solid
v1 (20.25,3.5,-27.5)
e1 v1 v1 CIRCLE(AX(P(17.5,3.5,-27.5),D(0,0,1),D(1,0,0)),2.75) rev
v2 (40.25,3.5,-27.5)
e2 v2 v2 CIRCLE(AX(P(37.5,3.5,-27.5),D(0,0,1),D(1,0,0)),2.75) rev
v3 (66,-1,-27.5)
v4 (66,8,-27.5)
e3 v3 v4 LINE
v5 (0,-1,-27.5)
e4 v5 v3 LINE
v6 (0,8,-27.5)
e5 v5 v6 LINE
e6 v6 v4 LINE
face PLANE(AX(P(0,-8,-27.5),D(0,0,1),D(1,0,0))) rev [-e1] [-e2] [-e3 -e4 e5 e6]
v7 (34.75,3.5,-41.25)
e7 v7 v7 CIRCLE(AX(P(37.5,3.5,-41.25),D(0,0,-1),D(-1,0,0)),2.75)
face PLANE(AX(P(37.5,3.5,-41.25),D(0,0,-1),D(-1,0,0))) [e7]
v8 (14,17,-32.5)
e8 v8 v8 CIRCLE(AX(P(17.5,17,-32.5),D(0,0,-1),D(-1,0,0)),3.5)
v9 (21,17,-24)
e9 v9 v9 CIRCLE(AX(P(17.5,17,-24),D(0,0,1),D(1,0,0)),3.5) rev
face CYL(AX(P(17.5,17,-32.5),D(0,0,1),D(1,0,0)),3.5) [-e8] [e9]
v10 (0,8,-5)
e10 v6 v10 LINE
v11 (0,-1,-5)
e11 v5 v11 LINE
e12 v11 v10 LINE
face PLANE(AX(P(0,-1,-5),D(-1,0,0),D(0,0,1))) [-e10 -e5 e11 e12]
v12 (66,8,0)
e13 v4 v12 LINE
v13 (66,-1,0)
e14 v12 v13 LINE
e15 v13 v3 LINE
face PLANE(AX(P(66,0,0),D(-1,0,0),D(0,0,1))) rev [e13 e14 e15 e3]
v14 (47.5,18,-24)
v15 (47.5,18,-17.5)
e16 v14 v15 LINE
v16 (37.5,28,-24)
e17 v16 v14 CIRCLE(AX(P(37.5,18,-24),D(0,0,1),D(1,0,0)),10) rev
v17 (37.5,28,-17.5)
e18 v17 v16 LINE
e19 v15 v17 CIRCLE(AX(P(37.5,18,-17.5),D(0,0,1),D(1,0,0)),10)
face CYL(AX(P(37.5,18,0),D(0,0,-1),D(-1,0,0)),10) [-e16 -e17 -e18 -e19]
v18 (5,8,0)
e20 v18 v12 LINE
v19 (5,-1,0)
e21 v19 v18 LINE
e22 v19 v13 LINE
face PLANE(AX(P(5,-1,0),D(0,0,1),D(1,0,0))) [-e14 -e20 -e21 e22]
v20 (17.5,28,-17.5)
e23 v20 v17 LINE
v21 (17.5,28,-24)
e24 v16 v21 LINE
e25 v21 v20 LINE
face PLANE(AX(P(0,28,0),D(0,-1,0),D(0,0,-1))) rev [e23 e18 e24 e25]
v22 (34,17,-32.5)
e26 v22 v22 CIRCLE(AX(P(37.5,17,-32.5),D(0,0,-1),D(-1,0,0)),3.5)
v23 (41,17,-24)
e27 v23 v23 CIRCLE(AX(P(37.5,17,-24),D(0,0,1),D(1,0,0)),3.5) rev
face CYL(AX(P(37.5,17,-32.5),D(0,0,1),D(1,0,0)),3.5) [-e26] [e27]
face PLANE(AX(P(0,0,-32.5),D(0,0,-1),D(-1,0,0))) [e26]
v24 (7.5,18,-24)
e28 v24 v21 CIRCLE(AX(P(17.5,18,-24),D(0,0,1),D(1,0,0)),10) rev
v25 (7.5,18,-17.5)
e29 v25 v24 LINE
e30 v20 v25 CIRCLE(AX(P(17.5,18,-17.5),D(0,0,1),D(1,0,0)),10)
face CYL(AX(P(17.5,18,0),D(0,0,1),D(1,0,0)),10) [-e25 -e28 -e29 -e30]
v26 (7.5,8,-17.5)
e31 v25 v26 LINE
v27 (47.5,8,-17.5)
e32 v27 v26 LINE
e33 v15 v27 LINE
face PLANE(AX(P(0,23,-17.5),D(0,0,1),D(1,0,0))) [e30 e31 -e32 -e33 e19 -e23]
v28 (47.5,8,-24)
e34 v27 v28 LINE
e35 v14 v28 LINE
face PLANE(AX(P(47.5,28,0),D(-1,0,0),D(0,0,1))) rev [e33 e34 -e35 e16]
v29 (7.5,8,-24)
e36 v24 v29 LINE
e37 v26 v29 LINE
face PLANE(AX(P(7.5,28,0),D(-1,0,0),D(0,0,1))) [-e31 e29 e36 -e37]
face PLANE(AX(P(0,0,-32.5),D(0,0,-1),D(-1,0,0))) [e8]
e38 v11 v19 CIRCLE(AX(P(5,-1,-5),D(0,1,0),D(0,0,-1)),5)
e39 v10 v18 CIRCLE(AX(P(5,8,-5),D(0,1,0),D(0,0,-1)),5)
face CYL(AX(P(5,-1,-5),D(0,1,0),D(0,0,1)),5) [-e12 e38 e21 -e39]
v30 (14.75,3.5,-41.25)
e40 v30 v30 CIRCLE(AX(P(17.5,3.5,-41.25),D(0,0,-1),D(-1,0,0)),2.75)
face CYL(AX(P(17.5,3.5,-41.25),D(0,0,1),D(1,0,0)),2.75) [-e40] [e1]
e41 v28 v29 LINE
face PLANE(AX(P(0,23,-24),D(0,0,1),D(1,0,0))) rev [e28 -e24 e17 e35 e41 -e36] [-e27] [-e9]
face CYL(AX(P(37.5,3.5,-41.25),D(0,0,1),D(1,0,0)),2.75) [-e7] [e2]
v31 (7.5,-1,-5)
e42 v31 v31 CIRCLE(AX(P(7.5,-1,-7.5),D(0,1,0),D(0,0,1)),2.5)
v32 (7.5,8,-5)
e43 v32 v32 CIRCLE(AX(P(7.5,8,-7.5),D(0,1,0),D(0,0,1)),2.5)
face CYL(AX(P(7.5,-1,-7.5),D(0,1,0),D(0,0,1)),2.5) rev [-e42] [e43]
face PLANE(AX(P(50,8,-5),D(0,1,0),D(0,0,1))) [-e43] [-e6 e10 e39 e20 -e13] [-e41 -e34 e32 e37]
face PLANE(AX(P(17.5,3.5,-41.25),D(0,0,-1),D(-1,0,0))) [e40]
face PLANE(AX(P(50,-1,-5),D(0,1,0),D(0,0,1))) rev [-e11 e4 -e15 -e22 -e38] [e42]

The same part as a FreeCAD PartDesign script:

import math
import FreeCAD as App
import Part
import Sketcher


def edges_at(feature, points):
    """Names of the edges that pass closest to the given points."""
    edges = feature.Shape.Edges
    near = lambda p: min(range(len(edges)), key=lambda i: edges[i].distToShape(Part.Vertex(*p))[0])
    return sorted({f"Edge{near(p) + 1}" for p in points})

doc = App.newDocument("Part")
body = doc.addObject("PartDesign::Body", "Body")

# Sketch on XZ plane
sketch1 = body.newObject("Sketcher::SketchObject", "Sketch")
sketch1.AttachmentSupport = (doc.getObject("XZ_Plane"), [""])
sketch1.MapMode = "FlatFace"
sketch1.addGeometry(Part.LineSegment(App.Vector(5, 0, 0), App.Vector(50, 0, 0)), False)
sketch1.addGeometry(Part.ArcOfCircle(Part.Circle(App.Vector(50, -5, 0), App.Vector(0, 0, 1), 5), math.radians(0), math.radians(90)), False)
sketch1.addGeometry(Part.LineSegment(App.Vector(55, -5, 0), App.Vector(55, -50, 0)), False)
sketch1.addGeometry(Part.ArcOfCircle(Part.Circle(App.Vector(50, -50, 0), App.Vector(0, 0, 1), 5), math.radians(-90), math.radians(0)), False)
sketch1.addGeometry(Part.LineSegment(App.Vector(50, -55, 0), App.Vector(5, -55, 0)), False)
sketch1.addGeometry(Part.ArcOfCircle(Part.Circle(App.Vector(5, -50, 0), App.Vector(0, 0, 1), 5), math.radians(180), math.radians(270)), False)
sketch1.addGeometry(Part.LineSegment(App.Vector(0, -50, 0), App.Vector(0, -5, 0)), False)
sketch1.addGeometry(Part.ArcOfCircle(Part.Circle(App.Vector(5, -5, 0), App.Vector(0, 0, 1), 5), math.radians(90), math.radians(180)), False)
sketch1.addGeometry(Part.Circle(App.Vector(7.5, -7.5, 0), App.Vector(0, 0, 1), 2.5), False)
sketch1.addGeometry(Part.Circle(App.Vector(47.5, -7.5, 0), App.Vector(0, 0, 1), 2.5), False)
sketch1.addGeometry(Part.Circle(App.Vector(7.5, -47.5, 0), App.Vector(0, 0, 1), 2.5), False)
sketch1.addGeometry(Part.Circle(App.Vector(47.5, -47.5, 0), App.Vector(0, 0, 1), 2.5), False)
sketch1.addConstraint(Sketcher.Constraint("Tangent", 0, 2, 1, 2))
sketch1.addConstraint(Sketcher.Constraint("Tangent", 1, 1, 2, 1))
sketch1.addConstraint(Sketcher.Constraint("Tangent", 2, 2, 3, 2))
sketch1.addConstraint(Sketcher.Constraint("Tangent", 3, 1, 4, 1))
sketch1.addConstraint(Sketcher.Constraint("Tangent", 4, 2, 5, 2))
sketch1.addConstraint(Sketcher.Constraint("Tangent", 5, 1, 6, 1))
sketch1.addConstraint(Sketcher.Constraint("Tangent", 6, 2, 7, 2))
sketch1.addConstraint(Sketcher.Constraint("Tangent", 7, 1, 0, 1))
sketch1.addConstraint(Sketcher.Constraint("Horizontal", 0))
sketch1.addConstraint(Sketcher.Constraint("Vertical", 2))
sketch1.addConstraint(Sketcher.Constraint("Horizontal", 4))
sketch1.addConstraint(Sketcher.Constraint("Vertical", 6))
sketch1.addConstraint(Sketcher.Constraint("Equal", 1, 3))
sketch1.addConstraint(Sketcher.Constraint("Equal", 3, 5))
sketch1.addConstraint(Sketcher.Constraint("Equal", 5, 7))
sketch1.addConstraint(Sketcher.Constraint("Equal", 8, 9))
sketch1.addConstraint(Sketcher.Constraint("Equal", 9, 10))
sketch1.addConstraint(Sketcher.Constraint("Equal", 10, 11))
sketch1.addConstraint(Sketcher.Constraint("PointOnObject", 0, 2, -1))
sketch1.addConstraint(Sketcher.Constraint("PointOnObject", 5, 1, -2))
sketch1.addConstraint(Sketcher.Constraint("Horizontal", 8, 3, 9, 3))
sketch1.addConstraint(Sketcher.Constraint("Horizontal", 10, 3, 11, 3))
sketch1.addConstraint(Sketcher.Constraint("Vertical", 8, 3, 10, 3))
sketch1.addConstraint(Sketcher.Constraint("Vertical", 9, 3, 11, 3))
sketch1.addConstraint(Sketcher.Constraint("Equal", 4, 2))
sketch1.addConstraint(Sketcher.Constraint("Diameter", 8, 5.0))
sketch1.addConstraint(Sketcher.Constraint("Radius", 1, 5.0))
sketch1.addConstraint(Sketcher.Constraint("DistanceX", 0, 1, 0, 2, 45.0))
sketch1.addConstraint(Sketcher.Constraint("DistanceX", 8, 3, 9, 3, 40.0))
sketch1.addConstraint(Sketcher.Constraint("DistanceY", 10, 3, 8, 3, 40.0))
sketch1.addConstraint(Sketcher.Constraint("DistanceX", -1, 1, 8, 3, 7.5))
sketch1.addConstraint(Sketcher.Constraint("DistanceY", 8, 3, -1, 1, 7.5))
pad1 = body.newObject("PartDesign::Pad", "Pad")
pad1.Profile = sketch1
pad1.Type = "TwoLengths"
pad1.Length = 8
pad1.Length2 = 1
pad1.Reversed = True

# Sketch on XZ plane
sketch2 = body.newObject("Sketcher::SketchObject", "Sketch001")
sketch2.AttachmentSupport = (doc.getObject("XZ_Plane"), [""])
sketch2.MapMode = "FlatFace"
sketch2.AttachmentOffset = App.Placement(App.Vector(0, 0, 8), App.Rotation())
sketch2.addGeometry(Part.LineSegment(App.Vector(0, -50, 0), App.Vector(0, -27.5, 0)), False)
sketch2.addGeometry(Part.LineSegment(App.Vector(0, -27.5, 0), App.Vector(55, -27.5, 0)), False)
sketch2.addGeometry(Part.LineSegment(App.Vector(55, -27.5, 0), App.Vector(55, -50, 0)), False)
sketch2.addGeometry(Part.ArcOfCircle(Part.Circle(App.Vector(50, -50, 0), App.Vector(0, 0, 1), 5), math.radians(-90), math.radians(0)), False)
sketch2.addGeometry(Part.LineSegment(App.Vector(50, -55, 0), App.Vector(5, -55, 0)), False)
sketch2.addGeometry(Part.ArcOfCircle(Part.Circle(App.Vector(5, -50, 0), App.Vector(0, 0, 1), 5), math.radians(180), math.radians(270)), False)
sketch2.addGeometry(Part.Circle(App.Vector(7.5, -47.5, 0), App.Vector(0, 0, 1), 2.5), False)
sketch2.addGeometry(Part.Circle(App.Vector(47.5, -47.5, 0), App.Vector(0, 0, 1), 2.5), False)
sketch2.addConstraint(Sketcher.Constraint("Coincident", 0, 2, 1, 1))
sketch2.addConstraint(Sketcher.Constraint("Coincident", 1, 2, 2, 1))
sketch2.addConstraint(Sketcher.Constraint("Tangent", 2, 2, 3, 2))
sketch2.addConstraint(Sketcher.Constraint("Tangent", 3, 1, 4, 1))
sketch2.addConstraint(Sketcher.Constraint("Tangent", 4, 2, 5, 2))
sketch2.addConstraint(Sketcher.Constraint("Tangent", 5, 1, 0, 1))
sketch2.addConstraint(Sketcher.Constraint("Vertical", 0))
sketch2.addConstraint(Sketcher.Constraint("Horizontal", 1))
sketch2.addConstraint(Sketcher.Constraint("Vertical", 2))
sketch2.addConstraint(Sketcher.Constraint("Horizontal", 4))
sketch2.addConstraint(Sketcher.Constraint("Equal", 3, 5))
sketch2.addConstraint(Sketcher.Constraint("Equal", 6, 7))
sketch2.addConstraint(Sketcher.Constraint("PointOnObject", 0, 2, -2))
sketch2.addConstraint(Sketcher.Constraint("Horizontal", 6, 3, 7, 3))
sketch2.addConstraint(Sketcher.Constraint("Diameter", 6, 5.0))
sketch2.addConstraint(Sketcher.Constraint("Radius", 3, 5.0))
sketch2.addConstraint(Sketcher.Constraint("DistanceX", 1, 1, 1, 2, 55.0))
sketch2.addConstraint(Sketcher.Constraint("DistanceY", 0, 1, 0, 2, 22.5))
sketch2.addConstraint(Sketcher.Constraint("DistanceY", 3, 3, -1, 1, 50.0))
sketch2.addConstraint(Sketcher.Constraint("DistanceX", 6, 3, 7, 3, 40.0))
sketch2.addConstraint(Sketcher.Constraint("DistanceY", 6, 3, 0, 2, 20.0))
sketch2.addConstraint(Sketcher.Constraint("DistanceX", -1, 1, 6, 3, 7.5))
pocket1 = body.newObject("PartDesign::Pocket", "Pocket")
pocket1.Profile = sketch2
pocket1.Length = 16

# Sketch on XY plane
sketch3 = body.newObject("Sketcher::SketchObject", "Sketch002")
sketch3.AttachmentSupport = (doc.getObject("XY_Plane"), [""])
sketch3.MapMode = "FlatFace"
sketch3.AttachmentOffset = App.Placement(App.Vector(0, 0, -27.5), App.Rotation())
sketch3.addGeometry(Part.Circle(App.Vector(37.5, 3.5, 0), App.Vector(0, 0, 1), 2.75), False)
sketch3.addGeometry(Part.Circle(App.Vector(17.5, 3.5, 0), App.Vector(0, 0, 1), 2.75), False)
sketch3.addConstraint(Sketcher.Constraint("Equal", 0, 1))
sketch3.addConstraint(Sketcher.Constraint("Horizontal", 0, 3, 1, 3))
sketch3.addConstraint(Sketcher.Constraint("Diameter", 0, 5.5))
sketch3.addConstraint(Sketcher.Constraint("DistanceX", 1, 3, 0, 3, 20.0))
sketch3.addConstraint(Sketcher.Constraint("DistanceX", -1, 1, 0, 3, 37.5))
sketch3.addConstraint(Sketcher.Constraint("DistanceY", -1, 1, 0, 3, 3.5))
pad2 = body.newObject("PartDesign::Pad", "Pad001")
pad2.Profile = sketch3
pad2.Length = 13.75
pad2.Reversed = True

# Sketch on XZ plane
sketch4 = body.newObject("Sketcher::SketchObject", "Sketch003")
sketch4.AttachmentSupport = (doc.getObject("XZ_Plane"), [""])
sketch4.MapMode = "FlatFace"
sketch4.AttachmentOffset = App.Placement(App.Vector(0, 0, -8), App.Rotation())
sketch4.addGeometry(Part.LineSegment(App.Vector(23, -24, 0), App.Vector(23, -17.5, 0)), False)
sketch4.addGeometry(Part.LineSegment(App.Vector(23, -17.5, 0), App.Vector(32, -17.5, 0)), False)
sketch4.addGeometry(Part.LineSegment(App.Vector(32, -17.5, 0), App.Vector(32, -24, 0)), False)
sketch4.addGeometry(Part.LineSegment(App.Vector(32, -24, 0), App.Vector(23, -24, 0)), False)
sketch4.addConstraint(Sketcher.Constraint("Coincident", 0, 2, 1, 1))
sketch4.addConstraint(Sketcher.Constraint("Coincident", 1, 2, 2, 1))
sketch4.addConstraint(Sketcher.Constraint("Coincident", 2, 2, 3, 1))
sketch4.addConstraint(Sketcher.Constraint("Coincident", 3, 2, 0, 1))
sketch4.addConstraint(Sketcher.Constraint("Vertical", 0))
sketch4.addConstraint(Sketcher.Constraint("Horizontal", 1))
sketch4.addConstraint(Sketcher.Constraint("Vertical", 2))
sketch4.addConstraint(Sketcher.Constraint("Horizontal", 3))
sketch4.addConstraint(Sketcher.Constraint("DistanceX", 1, 1, 1, 2, 9.0))
sketch4.addConstraint(Sketcher.Constraint("DistanceY", 0, 1, 0, 2, 6.5))
sketch4.addConstraint(Sketcher.Constraint("DistanceX", -1, 1, 0, 2, 23.0))
sketch4.addConstraint(Sketcher.Constraint("DistanceY", 2, 2, -1, 1, 24.0))
pad3 = body.newObject("PartDesign::Pad", "Pad002")
pad3.Profile = sketch4
pad3.Length = 15
pad3.Reversed = True

# Sketch on XY plane
sketch5 = body.newObject("Sketcher::SketchObject", "Sketch004")
sketch5.AttachmentSupport = (doc.getObject("XY_Plane"), [""])
sketch5.MapMode = "FlatFace"
sketch5.AttachmentOffset = App.Placement(App.Vector(0, 0, -24), App.Rotation())
sketch5.addGeometry(Part.ArcOfCircle(Part.Circle(App.Vector(27.5, 16, 0), App.Vector(0, 0, 1), 3.5), math.radians(-180), math.radians(-122.171242)), False)
sketch5.addGeometry(Part.ArcOfCircle(Part.Circle(App.Vector(27.5, 16, 0), App.Vector(0, 0, 1), 3.5), math.radians(-90), math.radians(180)), False)
sketch5.addGeometry(Part.ArcOfCircle(Part.Circle(App.Vector(27.5, 16, 0), App.Vector(0, 0, 1), 3.5), math.radians(-116.898158), math.radians(-90)), False)
sketch5.addGeometry(Part.ArcOfCircle(Part.Circle(App.Vector(25.774673, 12.954799, 0), App.Vector(0, 0, 1), 0.161043), math.radians(-28.21643), math.radians(149.147029)), False)
sketch5.addConstraint(Sketcher.Constraint("Tangent", 0, 1, 1, 2))
sketch5.addConstraint(Sketcher.Constraint("Tangent", 1, 1, 2, 2))
sketch5.addConstraint(Sketcher.Constraint("Coincident", 2, 1, 3, 1))
sketch5.addConstraint(Sketcher.Constraint("Coincident", 3, 2, 0, 2))
sketch5.addConstraint(Sketcher.Constraint("Coincident", 2, 3, 0, 3))
sketch5.addConstraint(Sketcher.Constraint("Horizontal", 2, 3, 0, 1))
sketch5.addConstraint(Sketcher.Constraint("Vertical", 2, 3, 1, 1))
sketch5.addConstraint(Sketcher.Constraint("Radius", 0, 3.5))
sketch5.addConstraint(Sketcher.Constraint("DistanceY", -1, 1, 0, 3, 16.0))
sketch5.addConstraint(Sketcher.Constraint("DistanceX", -1, 1, 0, 1, 24.0))
sketch5.addConstraint(Sketcher.Constraint("Radius", 3, 0.161043))
sketch5.addConstraint(Sketcher.Constraint("DistanceY", -1, 1, 3, 3, 12.954799))
sketch5.addConstraint(Sketcher.Constraint("DistanceX", -1, 1, 2, 1, 25.916579))
pad4 = body.newObject("PartDesign::Pad", "Pad003")
pad4.Profile = sketch5
pad4.Length = 8.5
pad4.Reversed = True

# Sketch on XZ plane
sketch6 = body.newObject("Sketcher::SketchObject", "Sketch005")
sketch6.AttachmentSupport = (doc.getObject("XZ_Plane"), [""])
sketch6.MapMode = "FlatFace"
sketch6.AttachmentOffset = App.Placement(App.Vector(0, 0, -23), App.Rotation())
sketch6.addGeometry(Part.LineSegment(App.Vector(23, -24, 0), App.Vector(23, -17.5, 0)), False)
sketch6.addGeometry(Part.LineSegment(App.Vector(23, -17.5, 0), App.Vector(32, -17.5, 0)), False)
sketch6.addGeometry(Part.LineSegment(App.Vector(32, -17.5, 0), App.Vector(32, -24, 0)), False)
sketch6.addGeometry(Part.LineSegment(App.Vector(32, -24, 0), App.Vector(23, -24, 0)), False)
sketch6.addConstraint(Sketcher.Constraint("Coincident", 0, 2, 1, 1))
sketch6.addConstraint(Sketcher.Constraint("Coincident", 1, 2, 2, 1))
sketch6.addConstraint(Sketcher.Constraint("Coincident", 2, 2, 3, 1))
sketch6.addConstraint(Sketcher.Constraint("Coincident", 3, 2, 0, 1))
sketch6.addConstraint(Sketcher.Constraint("Vertical", 0))
sketch6.addConstraint(Sketcher.Constraint("Horizontal", 1))
sketch6.addConstraint(Sketcher.Constraint("Vertical", 2))
sketch6.addConstraint(Sketcher.Constraint("Horizontal", 3))
sketch6.addConstraint(Sketcher.Constraint("DistanceX", 1, 1, 1, 2, 9.0))
sketch6.addConstraint(Sketcher.Constraint("DistanceY", 0, 1, 0, 2, 6.5))
sketch6.addConstraint(Sketcher.Constraint("DistanceX", -1, 1, 0, 2, 23.0))
sketch6.addConstraint(Sketcher.Constraint("DistanceY", 2, 2, -1, 1, 24.0))
pad5 = body.newObject("PartDesign::Pad", "Pad004")
pad5.Profile = sketch6
pad5.Length = 5
pad5.Reversed = True

# Sketch on XZ plane
sketch7 = body.newObject("Sketcher::SketchObject", "Sketch006")
sketch7.AttachmentSupport = (doc.getObject("XZ_Plane"), [""])
sketch7.MapMode = "FlatFace"
sketch7.AttachmentOffset = App.Placement(App.Vector(0, 0, -8), App.Rotation())
sketch7.addGeometry(Part.LineSegment(App.Vector(7.5, -24, 0), App.Vector(7.5, -17.5, 0)), False)
sketch7.addGeometry(Part.LineSegment(App.Vector(7.5, -17.5, 0), App.Vector(23, -17.5, 0)), False)
sketch7.addGeometry(Part.LineSegment(App.Vector(23, -17.5, 0), App.Vector(23, -24, 0)), False)
sketch7.addGeometry(Part.LineSegment(App.Vector(23, -24, 0), App.Vector(7.5, -24, 0)), False)
sketch7.addGeometry(Part.LineSegment(App.Vector(32, -24, 0), App.Vector(32, -17.5, 0)), False)
sketch7.addGeometry(Part.LineSegment(App.Vector(32, -17.5, 0), App.Vector(47.5, -17.5, 0)), False)
sketch7.addGeometry(Part.LineSegment(App.Vector(47.5, -17.5, 0), App.Vector(47.5, -24, 0)), False)
sketch7.addGeometry(Part.LineSegment(App.Vector(47.5, -24, 0), App.Vector(32, -24, 0)), False)
sketch7.addConstraint(Sketcher.Constraint("Coincident", 0, 2, 1, 1))
sketch7.addConstraint(Sketcher.Constraint("Coincident", 1, 2, 2, 1))
sketch7.addConstraint(Sketcher.Constraint("Coincident", 2, 2, 3, 1))
sketch7.addConstraint(Sketcher.Constraint("Coincident", 3, 2, 0, 1))
sketch7.addConstraint(Sketcher.Constraint("Coincident", 4, 2, 5, 1))
sketch7.addConstraint(Sketcher.Constraint("Coincident", 5, 2, 6, 1))
sketch7.addConstraint(Sketcher.Constraint("Coincident", 6, 2, 7, 1))
sketch7.addConstraint(Sketcher.Constraint("Coincident", 7, 2, 4, 1))
sketch7.addConstraint(Sketcher.Constraint("Vertical", 0))
sketch7.addConstraint(Sketcher.Constraint("Horizontal", 1))
sketch7.addConstraint(Sketcher.Constraint("Vertical", 2))
sketch7.addConstraint(Sketcher.Constraint("Horizontal", 3))
sketch7.addConstraint(Sketcher.Constraint("Vertical", 4))
sketch7.addConstraint(Sketcher.Constraint("Horizontal", 5))
sketch7.addConstraint(Sketcher.Constraint("Vertical", 6))
sketch7.addConstraint(Sketcher.Constraint("Horizontal", 7))
sketch7.addConstraint(Sketcher.Constraint("Horizontal", 1, 2, 4, 2))
sketch7.addConstraint(Sketcher.Constraint("Horizontal", 3, 2, 6, 2))
sketch7.addConstraint(Sketcher.Constraint("Equal", 3, 5))
sketch7.addConstraint(Sketcher.Constraint("DistanceX", 1, 1, 1, 2, 15.5))
sketch7.addConstraint(Sketcher.Constraint("DistanceY", 0, 1, 0, 2, 6.5))
sketch7.addConstraint(Sketcher.Constraint("DistanceX", -1, 1, 1, 2, 23.0))
sketch7.addConstraint(Sketcher.Constraint("DistanceY", 2, 2, -1, 1, 24.0))
sketch7.addConstraint(Sketcher.Constraint("DistanceX", -1, 1, 4, 2, 32.0))
pad6 = body.newObject("PartDesign::Pad", "Pad005")
pad6.Profile = sketch7
pad6.Length = 20
pad6.Reversed = True

# Sketch on XY plane
sketch8 = body.newObject("Sketcher::SketchObject", "Sketch007")
sketch8.AttachmentSupport = (doc.getObject("XY_Plane"), [""])
sketch8.MapMode = "FlatFace"
sketch8.AttachmentOffset = App.Placement(App.Vector(0, 0, -24), App.Rotation())
sketch8.addGeometry(Part.ArcOfCircle(Part.Circle(App.Vector(17.5, 17, 0), App.Vector(0, 0, 1), 3.5), math.radians(0), math.radians(180)), False)
sketch8.addGeometry(Part.ArcOfCircle(Part.Circle(App.Vector(17.5, 17, 0), App.Vector(0, 0, 1), 3.5), math.radians(-90), math.radians(0)), False)
sketch8.addGeometry(Part.ArcOfCircle(Part.Circle(App.Vector(17.5, 17, 0), App.Vector(0, 0, 1), 3.5), math.radians(-180), math.radians(-90)), False)
sketch8.addGeometry(Part.ArcOfCircle(Part.Circle(App.Vector(37.5, 17, 0), App.Vector(0, 0, 1), 3.5), math.radians(-90), math.radians(0)), False)
sketch8.addGeometry(Part.ArcOfCircle(Part.Circle(App.Vector(37.5, 17, 0), App.Vector(0, 0, 1), 3.5), math.radians(-180), math.radians(-90)), False)
sketch8.addGeometry(Part.ArcOfCircle(Part.Circle(App.Vector(37.5, 17, 0), App.Vector(0, 0, 1), 3.5), math.radians(0), math.radians(180)), False)
sketch8.addConstraint(Sketcher.Constraint("Tangent", 0, 1, 1, 2))
sketch8.addConstraint(Sketcher.Constraint("Tangent", 1, 1, 2, 2))
sketch8.addConstraint(Sketcher.Constraint("Tangent", 2, 1, 0, 2))
sketch8.addConstraint(Sketcher.Constraint("Tangent", 3, 1, 4, 2))
sketch8.addConstraint(Sketcher.Constraint("Tangent", 4, 1, 5, 2))
sketch8.addConstraint(Sketcher.Constraint("Tangent", 5, 1, 3, 2))
sketch8.addConstraint(Sketcher.Constraint("Equal", 2, 3))
sketch8.addConstraint(Sketcher.Constraint("Horizontal", 2, 3, 3, 3))
sketch8.addConstraint(Sketcher.Constraint("Horizontal", 5, 3, 0, 1))
sketch8.addConstraint(Sketcher.Constraint("Horizontal", 0, 1, 2, 1))
sketch8.addConstraint(Sketcher.Constraint("Horizontal", 2, 1, 4, 1))
sketch8.addConstraint(Sketcher.Constraint("Horizontal", 4, 1, 5, 1))
sketch8.addConstraint(Sketcher.Constraint("Vertical", 2, 3, 1, 1))
sketch8.addConstraint(Sketcher.Constraint("Vertical", 5, 3, 3, 1))
sketch8.addConstraint(Sketcher.Constraint("Radius", 0, 3.5))
sketch8.addConstraint(Sketcher.Constraint("DistanceY", -1, 1, 0, 3, 17.0))
sketch8.addConstraint(Sketcher.Constraint("DistanceX", -1, 1, 0, 1, 21.0))
sketch8.addConstraint(Sketcher.Constraint("DistanceX", -1, 1, 4, 1, 34.0))
pad7 = body.newObject("PartDesign::Pad", "Pad006")
pad7.Profile = sketch8
pad7.Length = 8.5
pad7.Reversed = True

# Sketch on XY plane
sketch9 = body.newObject("Sketcher::SketchObject", "Sketch008")
sketch9.AttachmentSupport = (doc.getObject("XY_Plane"), [""])
sketch9.MapMode = "FlatFace"
sketch9.AttachmentOffset = App.Placement(App.Vector(0, 0, -24), App.Rotation())
sketch9.addGeometry(Part.Circle(App.Vector(27.5, 16, 0), App.Vector(0, 0, 1), 3.5), False)
sketch9.addConstraint(Sketcher.Constraint("Diameter", 0, 7.0))
sketch9.addConstraint(Sketcher.Constraint("DistanceY", -1, 1, 0, 3, 16.0))
sketch9.addConstraint(Sketcher.Constraint("DistanceX", -1, 1, 0, 3, 27.5))
pocket2 = body.newObject("PartDesign::Pocket", "Pocket001")
pocket2.Profile = sketch9
pocket2.Length = 8.5
doc.recompute()

fillet = body.newObject("PartDesign::Fillet", "Fillet")
fillet.Base = (pocket2, edges_at(pocket2, [(7.5, 28, -20.75), (47.5, 28, -20.75)]))
fillet.Radius = 10

# Sketch on YZ plane
sketch10 = body.newObject("Sketcher::SketchObject", "Sketch009")
sketch10.AttachmentSupport = (doc.getObject("YZ_Plane"), [""])
sketch10.MapMode = "FlatFace"
sketch10.AttachmentOffset = App.Placement(App.Vector(0, 0, 55), App.Rotation())
sketch10.addGeometry(Part.LineSegment(App.Vector(8, 0, 0), App.Vector(-1, 0, 0)), False)
sketch10.addGeometry(Part.LineSegment(App.Vector(-1, 0, 0), App.Vector(-1, -27.5, 0)), False)
sketch10.addGeometry(Part.LineSegment(App.Vector(-1, -27.5, 0), App.Vector(8, -27.5, 0)), False)
sketch10.addGeometry(Part.LineSegment(App.Vector(8, -27.5, 0), App.Vector(8, 0, 0)), False)
sketch10.addConstraint(Sketcher.Constraint("Coincident", 0, 2, 1, 1))
sketch10.addConstraint(Sketcher.Constraint("Coincident", 1, 2, 2, 1))
sketch10.addConstraint(Sketcher.Constraint("Coincident", 2, 2, 3, 1))
sketch10.addConstraint(Sketcher.Constraint("Coincident", 3, 2, 0, 1))
sketch10.addConstraint(Sketcher.Constraint("Horizontal", 0))
sketch10.addConstraint(Sketcher.Constraint("Vertical", 1))
sketch10.addConstraint(Sketcher.Constraint("Horizontal", 2))
sketch10.addConstraint(Sketcher.Constraint("Vertical", 3))
sketch10.addConstraint(Sketcher.Constraint("PointOnObject", 0, 2, -1))
sketch10.addConstraint(Sketcher.Constraint("DistanceX", 0, 2, 0, 1, 9.0))
sketch10.addConstraint(Sketcher.Constraint("DistanceY", 1, 2, 1, 1, 27.5))
sketch10.addConstraint(Sketcher.Constraint("DistanceX", 0, 2, -1, 1, 1.0))
pad8 = body.newObject("PartDesign::Pad", "Pad007")
pad8.Profile = sketch10
pad8.Type = "TwoLengths"
pad8.Length = 11
pad8.Length2 = 11

doc.recompute()
